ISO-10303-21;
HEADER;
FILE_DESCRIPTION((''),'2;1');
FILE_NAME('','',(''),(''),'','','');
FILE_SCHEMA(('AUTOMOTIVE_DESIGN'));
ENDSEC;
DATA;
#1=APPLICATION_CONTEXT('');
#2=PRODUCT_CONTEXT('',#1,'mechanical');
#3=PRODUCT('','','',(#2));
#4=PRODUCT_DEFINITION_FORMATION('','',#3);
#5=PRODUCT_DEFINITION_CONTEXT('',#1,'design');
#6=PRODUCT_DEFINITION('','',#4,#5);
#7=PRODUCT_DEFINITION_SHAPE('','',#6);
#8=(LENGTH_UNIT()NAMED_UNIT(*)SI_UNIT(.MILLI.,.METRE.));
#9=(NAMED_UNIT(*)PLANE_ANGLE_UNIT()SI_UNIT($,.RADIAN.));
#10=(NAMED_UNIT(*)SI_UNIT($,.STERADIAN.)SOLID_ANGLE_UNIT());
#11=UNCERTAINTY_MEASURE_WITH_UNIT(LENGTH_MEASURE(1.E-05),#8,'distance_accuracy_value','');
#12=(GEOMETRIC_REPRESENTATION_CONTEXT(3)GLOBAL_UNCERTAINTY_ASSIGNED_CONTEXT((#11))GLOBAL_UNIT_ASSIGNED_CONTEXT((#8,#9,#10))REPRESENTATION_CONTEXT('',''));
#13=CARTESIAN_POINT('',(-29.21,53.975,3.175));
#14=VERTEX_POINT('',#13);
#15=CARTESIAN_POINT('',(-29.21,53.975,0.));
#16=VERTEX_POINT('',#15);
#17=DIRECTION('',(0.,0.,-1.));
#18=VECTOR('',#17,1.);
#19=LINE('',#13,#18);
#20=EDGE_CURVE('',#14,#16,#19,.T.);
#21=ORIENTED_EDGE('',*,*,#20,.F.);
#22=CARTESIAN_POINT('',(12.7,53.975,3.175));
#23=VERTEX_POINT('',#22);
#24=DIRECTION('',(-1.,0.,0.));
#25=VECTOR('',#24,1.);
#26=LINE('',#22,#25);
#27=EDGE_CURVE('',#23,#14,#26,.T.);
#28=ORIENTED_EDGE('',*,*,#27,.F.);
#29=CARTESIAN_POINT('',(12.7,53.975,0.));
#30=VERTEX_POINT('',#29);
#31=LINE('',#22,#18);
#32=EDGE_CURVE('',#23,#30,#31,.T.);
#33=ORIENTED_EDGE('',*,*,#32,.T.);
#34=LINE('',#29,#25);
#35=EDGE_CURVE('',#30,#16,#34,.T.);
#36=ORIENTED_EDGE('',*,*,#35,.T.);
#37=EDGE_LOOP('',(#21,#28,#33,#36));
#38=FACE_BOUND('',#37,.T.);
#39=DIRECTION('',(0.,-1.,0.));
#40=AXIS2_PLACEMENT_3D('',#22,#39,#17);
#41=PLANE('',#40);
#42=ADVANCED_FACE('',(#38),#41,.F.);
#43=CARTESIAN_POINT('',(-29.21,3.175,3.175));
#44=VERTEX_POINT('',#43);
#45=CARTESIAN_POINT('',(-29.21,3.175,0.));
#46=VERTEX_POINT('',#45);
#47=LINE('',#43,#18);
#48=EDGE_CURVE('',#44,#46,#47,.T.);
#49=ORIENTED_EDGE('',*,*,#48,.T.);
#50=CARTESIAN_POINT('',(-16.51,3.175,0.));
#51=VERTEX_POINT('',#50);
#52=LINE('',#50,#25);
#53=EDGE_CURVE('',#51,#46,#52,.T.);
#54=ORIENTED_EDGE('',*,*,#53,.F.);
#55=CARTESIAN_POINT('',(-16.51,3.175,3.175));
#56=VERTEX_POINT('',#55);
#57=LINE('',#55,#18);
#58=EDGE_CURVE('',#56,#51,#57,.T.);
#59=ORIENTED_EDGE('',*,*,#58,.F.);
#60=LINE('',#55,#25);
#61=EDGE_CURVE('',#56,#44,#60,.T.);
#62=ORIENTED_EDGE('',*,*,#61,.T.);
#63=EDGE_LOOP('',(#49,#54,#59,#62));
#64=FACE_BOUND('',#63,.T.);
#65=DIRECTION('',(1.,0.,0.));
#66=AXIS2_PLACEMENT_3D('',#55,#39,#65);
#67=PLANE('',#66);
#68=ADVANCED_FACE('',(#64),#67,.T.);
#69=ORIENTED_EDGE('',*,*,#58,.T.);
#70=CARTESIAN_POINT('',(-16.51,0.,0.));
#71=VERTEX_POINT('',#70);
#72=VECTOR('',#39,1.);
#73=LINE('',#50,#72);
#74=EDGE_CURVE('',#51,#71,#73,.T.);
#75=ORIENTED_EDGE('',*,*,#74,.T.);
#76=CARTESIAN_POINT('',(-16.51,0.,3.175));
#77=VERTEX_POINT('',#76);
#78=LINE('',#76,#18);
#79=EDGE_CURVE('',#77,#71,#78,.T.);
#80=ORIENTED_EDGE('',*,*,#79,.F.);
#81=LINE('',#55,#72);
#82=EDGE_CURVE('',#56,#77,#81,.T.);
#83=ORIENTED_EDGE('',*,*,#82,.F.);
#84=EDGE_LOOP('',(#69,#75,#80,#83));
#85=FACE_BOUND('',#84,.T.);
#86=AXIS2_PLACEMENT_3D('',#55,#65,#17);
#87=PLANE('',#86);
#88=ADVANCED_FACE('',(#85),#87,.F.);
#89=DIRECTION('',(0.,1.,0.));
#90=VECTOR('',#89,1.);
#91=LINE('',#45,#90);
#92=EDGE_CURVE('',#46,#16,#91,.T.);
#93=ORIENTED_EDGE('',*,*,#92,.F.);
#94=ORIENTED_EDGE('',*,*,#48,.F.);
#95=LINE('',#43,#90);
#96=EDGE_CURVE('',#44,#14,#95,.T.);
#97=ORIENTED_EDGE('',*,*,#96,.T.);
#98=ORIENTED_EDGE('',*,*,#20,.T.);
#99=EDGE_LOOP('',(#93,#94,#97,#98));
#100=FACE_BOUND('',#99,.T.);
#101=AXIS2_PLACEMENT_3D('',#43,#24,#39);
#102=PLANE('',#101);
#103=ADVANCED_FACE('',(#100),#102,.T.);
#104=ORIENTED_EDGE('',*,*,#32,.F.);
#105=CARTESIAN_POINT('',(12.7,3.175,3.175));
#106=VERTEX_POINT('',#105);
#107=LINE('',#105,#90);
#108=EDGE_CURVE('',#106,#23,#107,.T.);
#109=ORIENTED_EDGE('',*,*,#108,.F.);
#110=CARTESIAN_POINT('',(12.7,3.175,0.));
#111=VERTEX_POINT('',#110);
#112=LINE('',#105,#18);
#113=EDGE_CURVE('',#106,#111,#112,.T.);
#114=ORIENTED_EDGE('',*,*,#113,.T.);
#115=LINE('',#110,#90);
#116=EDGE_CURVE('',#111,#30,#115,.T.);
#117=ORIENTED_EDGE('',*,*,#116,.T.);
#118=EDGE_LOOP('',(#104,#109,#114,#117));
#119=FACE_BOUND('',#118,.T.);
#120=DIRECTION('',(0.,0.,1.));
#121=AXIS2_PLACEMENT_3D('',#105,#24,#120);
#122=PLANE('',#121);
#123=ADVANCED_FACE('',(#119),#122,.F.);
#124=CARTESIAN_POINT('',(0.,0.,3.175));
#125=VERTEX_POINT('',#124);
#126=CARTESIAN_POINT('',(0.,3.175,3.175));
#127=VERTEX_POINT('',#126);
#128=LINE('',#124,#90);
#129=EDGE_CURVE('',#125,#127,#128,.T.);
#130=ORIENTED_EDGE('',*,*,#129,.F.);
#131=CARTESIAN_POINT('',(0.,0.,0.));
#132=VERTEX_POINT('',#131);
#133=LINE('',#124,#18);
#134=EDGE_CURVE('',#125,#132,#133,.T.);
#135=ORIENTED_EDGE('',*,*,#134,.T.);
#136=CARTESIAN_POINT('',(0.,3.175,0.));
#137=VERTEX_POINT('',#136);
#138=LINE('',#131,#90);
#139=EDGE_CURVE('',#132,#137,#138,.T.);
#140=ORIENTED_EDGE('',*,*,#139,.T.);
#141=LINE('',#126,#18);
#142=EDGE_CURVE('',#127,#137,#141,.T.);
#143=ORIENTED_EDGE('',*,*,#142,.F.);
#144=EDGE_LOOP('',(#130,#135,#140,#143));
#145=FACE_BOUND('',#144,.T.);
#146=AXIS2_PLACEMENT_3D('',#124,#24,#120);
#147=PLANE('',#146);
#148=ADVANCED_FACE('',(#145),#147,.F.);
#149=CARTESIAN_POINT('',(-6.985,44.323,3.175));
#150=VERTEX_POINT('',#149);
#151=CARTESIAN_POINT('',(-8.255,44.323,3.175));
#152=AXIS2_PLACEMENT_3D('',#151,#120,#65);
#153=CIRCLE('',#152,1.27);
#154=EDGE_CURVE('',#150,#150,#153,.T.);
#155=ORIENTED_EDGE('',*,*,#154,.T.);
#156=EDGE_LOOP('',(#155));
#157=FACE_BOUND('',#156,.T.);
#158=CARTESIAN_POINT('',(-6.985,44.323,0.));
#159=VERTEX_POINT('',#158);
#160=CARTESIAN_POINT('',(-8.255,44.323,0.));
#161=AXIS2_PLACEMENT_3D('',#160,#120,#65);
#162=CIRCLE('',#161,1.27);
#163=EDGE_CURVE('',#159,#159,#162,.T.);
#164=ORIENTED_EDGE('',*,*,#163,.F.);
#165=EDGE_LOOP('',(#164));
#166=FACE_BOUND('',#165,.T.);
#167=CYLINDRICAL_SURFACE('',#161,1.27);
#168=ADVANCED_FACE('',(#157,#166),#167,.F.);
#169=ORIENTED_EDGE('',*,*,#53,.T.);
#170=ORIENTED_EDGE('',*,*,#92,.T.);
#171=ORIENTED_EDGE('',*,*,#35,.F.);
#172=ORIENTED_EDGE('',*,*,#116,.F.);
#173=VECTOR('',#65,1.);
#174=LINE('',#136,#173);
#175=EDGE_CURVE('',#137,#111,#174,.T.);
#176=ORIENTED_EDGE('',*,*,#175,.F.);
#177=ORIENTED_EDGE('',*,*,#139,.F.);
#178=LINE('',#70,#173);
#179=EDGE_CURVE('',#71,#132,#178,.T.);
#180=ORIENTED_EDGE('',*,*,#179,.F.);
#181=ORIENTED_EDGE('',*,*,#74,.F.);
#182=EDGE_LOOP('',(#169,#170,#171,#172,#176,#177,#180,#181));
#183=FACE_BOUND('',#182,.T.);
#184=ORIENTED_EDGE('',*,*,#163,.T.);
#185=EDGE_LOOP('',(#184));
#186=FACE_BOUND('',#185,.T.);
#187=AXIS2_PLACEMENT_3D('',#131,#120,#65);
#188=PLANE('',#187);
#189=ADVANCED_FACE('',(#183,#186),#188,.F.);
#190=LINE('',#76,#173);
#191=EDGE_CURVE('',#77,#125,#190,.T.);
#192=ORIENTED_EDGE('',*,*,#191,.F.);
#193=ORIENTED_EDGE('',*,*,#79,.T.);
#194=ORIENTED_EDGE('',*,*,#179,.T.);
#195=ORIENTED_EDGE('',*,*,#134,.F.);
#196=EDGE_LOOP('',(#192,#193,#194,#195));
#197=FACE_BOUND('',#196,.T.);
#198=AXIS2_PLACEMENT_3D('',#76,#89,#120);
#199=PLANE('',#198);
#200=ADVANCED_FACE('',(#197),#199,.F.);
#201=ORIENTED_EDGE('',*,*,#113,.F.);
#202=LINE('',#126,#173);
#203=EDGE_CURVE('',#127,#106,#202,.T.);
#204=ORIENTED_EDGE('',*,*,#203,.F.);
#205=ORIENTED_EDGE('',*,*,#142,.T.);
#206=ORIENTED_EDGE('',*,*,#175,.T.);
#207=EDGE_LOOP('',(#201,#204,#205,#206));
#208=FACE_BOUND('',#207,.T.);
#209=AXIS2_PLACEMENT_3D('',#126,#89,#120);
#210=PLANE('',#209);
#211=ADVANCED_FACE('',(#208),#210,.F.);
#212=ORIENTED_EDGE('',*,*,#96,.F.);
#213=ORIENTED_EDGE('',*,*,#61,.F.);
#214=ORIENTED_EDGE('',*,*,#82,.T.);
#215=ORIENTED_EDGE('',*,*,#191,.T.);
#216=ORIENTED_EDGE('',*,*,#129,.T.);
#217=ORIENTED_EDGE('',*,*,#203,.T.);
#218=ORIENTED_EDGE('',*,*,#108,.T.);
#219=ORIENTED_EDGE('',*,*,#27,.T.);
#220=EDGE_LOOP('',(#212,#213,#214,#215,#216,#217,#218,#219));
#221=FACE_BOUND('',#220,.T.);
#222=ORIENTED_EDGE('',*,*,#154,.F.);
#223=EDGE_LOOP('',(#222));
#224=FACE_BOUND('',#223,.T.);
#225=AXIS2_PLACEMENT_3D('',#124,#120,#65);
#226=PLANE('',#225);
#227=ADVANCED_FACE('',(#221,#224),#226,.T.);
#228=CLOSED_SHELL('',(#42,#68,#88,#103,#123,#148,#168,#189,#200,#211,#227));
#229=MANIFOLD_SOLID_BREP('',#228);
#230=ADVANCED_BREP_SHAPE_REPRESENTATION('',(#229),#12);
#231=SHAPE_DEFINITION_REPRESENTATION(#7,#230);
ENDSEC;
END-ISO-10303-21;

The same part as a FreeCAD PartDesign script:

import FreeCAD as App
import Part
import Sketcher

V = App.Vector
Q = App.Units.Quantity

doc = App.newDocument("Part")
body = doc.addObject("PartDesign::Body", "Body")

# Sketch on XY plane
sketch1 = doc.addObject("Sketcher::SketchObject", "Sketch")
body.addObject(sketch1)
sketch1.AttachmentSupport = (doc.XY_Plane, [""])
sketch1.MapMode = "FlatFace"
sketch1.addGeometry([
    Part.LineSegment(V(-16.5, 0, 0), V(0, 0, 0)),  # 0
    Part.LineSegment(V(0, 0, 0), V(0, 3.2, 0)),  # 1
    Part.LineSegment(V(0, 3.2, 0), V(12.7, 3.2, 0)),  # 2
    Part.LineSegment(V(12.7, 3.2, 0), V(12.7, 54, 0)),  # 3
    Part.LineSegment(V(12.7, 54, 0), V(-29.2, 54, 0)),  # 4
    Part.LineSegment(V(-29.2, 54, 0), V(-29.2, 3.2, 0)),  # 5
    Part.LineSegment(V(-29.2, 3.2, 0), V(-16.5, 3.2, 0)),  # 6
    Part.LineSegment(V(-16.5, 3.2, 0), V(-16.5, 0, 0)),  # 7
], False)
sketch1.addConstraint([
    Sketcher.Constraint("Coincident", 0, 2, 1, 1),
    Sketcher.Constraint("Coincident", 1, 2, 2, 1),
    Sketcher.Constraint("Coincident", 2, 2, 3, 1),
    Sketcher.Constraint("Coincident", 3, 2, 4, 1),
    Sketcher.Constraint("Coincident", 4, 2, 5, 1),
    Sketcher.Constraint("Coincident", 5, 2, 6, 1),
    Sketcher.Constraint("Coincident", 6, 2, 7, 1),
    Sketcher.Constraint("Coincident", 7, 2, 0, 1),
    Sketcher.Constraint("Horizontal", 0),
    Sketcher.Constraint("Vertical", 1),
    Sketcher.Constraint("Horizontal", 2),
    Sketcher.Constraint("Vertical", 3),
    Sketcher.Constraint("Horizontal", 4),
    Sketcher.Constraint("Vertical", 5),
    Sketcher.Constraint("Horizontal", 6),
    Sketcher.Constraint("Vertical", 7),
    Sketcher.Constraint("Coincident", 0, 2, -1, 1),
    Sketcher.Constraint("Horizontal", 2, 2, 5, 2),
    Sketcher.Constraint("Equal", 2, 6),
    Sketcher.Constraint("DistanceY", 3, 1, 3, 2, Q("2 in")),
    Sketcher.Constraint("DistanceX", 2, 1, 2, 2, Q("0.5 in")),
    Sketcher.Constraint("DistanceX", 0, 1, 0, 2, Q("0.65 in")),
    Sketcher.Constraint("DistanceY", 1, 1, 1, 2, Q("0.125 in")),
])
pad1 = doc.addObject("PartDesign::Pad", "Pad")
body.addObject(pad1)
pad1.Profile = sketch1
pad1.Length = Q("0.125 in")

# Sketch on XY plane
sketch2 = doc.addObject("Sketcher::SketchObject", "Sketch001")
body.addObject(sketch2)
sketch2.AttachmentSupport = (doc.XY_Plane, [""])
sketch2.MapMode = "FlatFace"
sketch2.AttachmentOffset = App.Placement(V(0, 0, 0.125 * 25.4), App.Rotation())
sketch2.addGeometry(Part.Circle(V(-8.3, 44.3, 0), V(0, 0, 1), 1.3), False)
sketch2.addConstraint([
    Sketcher.Constraint("Diameter", 0, Q("0.1 in")),
    Sketcher.Constraint("DistanceX", 0, 3, -1, 1, Q("0.325 in")),
    Sketcher.Constraint("DistanceY", -1, 1, 0, 3, Q("1.745 in")),
])
pocket1 = doc.addObject("PartDesign::Pocket", "Pocket")
body.addObject(pocket1)
pocket1.Profile = sketch2
pocket1.Type = "ThroughAll"

doc.recompute()
